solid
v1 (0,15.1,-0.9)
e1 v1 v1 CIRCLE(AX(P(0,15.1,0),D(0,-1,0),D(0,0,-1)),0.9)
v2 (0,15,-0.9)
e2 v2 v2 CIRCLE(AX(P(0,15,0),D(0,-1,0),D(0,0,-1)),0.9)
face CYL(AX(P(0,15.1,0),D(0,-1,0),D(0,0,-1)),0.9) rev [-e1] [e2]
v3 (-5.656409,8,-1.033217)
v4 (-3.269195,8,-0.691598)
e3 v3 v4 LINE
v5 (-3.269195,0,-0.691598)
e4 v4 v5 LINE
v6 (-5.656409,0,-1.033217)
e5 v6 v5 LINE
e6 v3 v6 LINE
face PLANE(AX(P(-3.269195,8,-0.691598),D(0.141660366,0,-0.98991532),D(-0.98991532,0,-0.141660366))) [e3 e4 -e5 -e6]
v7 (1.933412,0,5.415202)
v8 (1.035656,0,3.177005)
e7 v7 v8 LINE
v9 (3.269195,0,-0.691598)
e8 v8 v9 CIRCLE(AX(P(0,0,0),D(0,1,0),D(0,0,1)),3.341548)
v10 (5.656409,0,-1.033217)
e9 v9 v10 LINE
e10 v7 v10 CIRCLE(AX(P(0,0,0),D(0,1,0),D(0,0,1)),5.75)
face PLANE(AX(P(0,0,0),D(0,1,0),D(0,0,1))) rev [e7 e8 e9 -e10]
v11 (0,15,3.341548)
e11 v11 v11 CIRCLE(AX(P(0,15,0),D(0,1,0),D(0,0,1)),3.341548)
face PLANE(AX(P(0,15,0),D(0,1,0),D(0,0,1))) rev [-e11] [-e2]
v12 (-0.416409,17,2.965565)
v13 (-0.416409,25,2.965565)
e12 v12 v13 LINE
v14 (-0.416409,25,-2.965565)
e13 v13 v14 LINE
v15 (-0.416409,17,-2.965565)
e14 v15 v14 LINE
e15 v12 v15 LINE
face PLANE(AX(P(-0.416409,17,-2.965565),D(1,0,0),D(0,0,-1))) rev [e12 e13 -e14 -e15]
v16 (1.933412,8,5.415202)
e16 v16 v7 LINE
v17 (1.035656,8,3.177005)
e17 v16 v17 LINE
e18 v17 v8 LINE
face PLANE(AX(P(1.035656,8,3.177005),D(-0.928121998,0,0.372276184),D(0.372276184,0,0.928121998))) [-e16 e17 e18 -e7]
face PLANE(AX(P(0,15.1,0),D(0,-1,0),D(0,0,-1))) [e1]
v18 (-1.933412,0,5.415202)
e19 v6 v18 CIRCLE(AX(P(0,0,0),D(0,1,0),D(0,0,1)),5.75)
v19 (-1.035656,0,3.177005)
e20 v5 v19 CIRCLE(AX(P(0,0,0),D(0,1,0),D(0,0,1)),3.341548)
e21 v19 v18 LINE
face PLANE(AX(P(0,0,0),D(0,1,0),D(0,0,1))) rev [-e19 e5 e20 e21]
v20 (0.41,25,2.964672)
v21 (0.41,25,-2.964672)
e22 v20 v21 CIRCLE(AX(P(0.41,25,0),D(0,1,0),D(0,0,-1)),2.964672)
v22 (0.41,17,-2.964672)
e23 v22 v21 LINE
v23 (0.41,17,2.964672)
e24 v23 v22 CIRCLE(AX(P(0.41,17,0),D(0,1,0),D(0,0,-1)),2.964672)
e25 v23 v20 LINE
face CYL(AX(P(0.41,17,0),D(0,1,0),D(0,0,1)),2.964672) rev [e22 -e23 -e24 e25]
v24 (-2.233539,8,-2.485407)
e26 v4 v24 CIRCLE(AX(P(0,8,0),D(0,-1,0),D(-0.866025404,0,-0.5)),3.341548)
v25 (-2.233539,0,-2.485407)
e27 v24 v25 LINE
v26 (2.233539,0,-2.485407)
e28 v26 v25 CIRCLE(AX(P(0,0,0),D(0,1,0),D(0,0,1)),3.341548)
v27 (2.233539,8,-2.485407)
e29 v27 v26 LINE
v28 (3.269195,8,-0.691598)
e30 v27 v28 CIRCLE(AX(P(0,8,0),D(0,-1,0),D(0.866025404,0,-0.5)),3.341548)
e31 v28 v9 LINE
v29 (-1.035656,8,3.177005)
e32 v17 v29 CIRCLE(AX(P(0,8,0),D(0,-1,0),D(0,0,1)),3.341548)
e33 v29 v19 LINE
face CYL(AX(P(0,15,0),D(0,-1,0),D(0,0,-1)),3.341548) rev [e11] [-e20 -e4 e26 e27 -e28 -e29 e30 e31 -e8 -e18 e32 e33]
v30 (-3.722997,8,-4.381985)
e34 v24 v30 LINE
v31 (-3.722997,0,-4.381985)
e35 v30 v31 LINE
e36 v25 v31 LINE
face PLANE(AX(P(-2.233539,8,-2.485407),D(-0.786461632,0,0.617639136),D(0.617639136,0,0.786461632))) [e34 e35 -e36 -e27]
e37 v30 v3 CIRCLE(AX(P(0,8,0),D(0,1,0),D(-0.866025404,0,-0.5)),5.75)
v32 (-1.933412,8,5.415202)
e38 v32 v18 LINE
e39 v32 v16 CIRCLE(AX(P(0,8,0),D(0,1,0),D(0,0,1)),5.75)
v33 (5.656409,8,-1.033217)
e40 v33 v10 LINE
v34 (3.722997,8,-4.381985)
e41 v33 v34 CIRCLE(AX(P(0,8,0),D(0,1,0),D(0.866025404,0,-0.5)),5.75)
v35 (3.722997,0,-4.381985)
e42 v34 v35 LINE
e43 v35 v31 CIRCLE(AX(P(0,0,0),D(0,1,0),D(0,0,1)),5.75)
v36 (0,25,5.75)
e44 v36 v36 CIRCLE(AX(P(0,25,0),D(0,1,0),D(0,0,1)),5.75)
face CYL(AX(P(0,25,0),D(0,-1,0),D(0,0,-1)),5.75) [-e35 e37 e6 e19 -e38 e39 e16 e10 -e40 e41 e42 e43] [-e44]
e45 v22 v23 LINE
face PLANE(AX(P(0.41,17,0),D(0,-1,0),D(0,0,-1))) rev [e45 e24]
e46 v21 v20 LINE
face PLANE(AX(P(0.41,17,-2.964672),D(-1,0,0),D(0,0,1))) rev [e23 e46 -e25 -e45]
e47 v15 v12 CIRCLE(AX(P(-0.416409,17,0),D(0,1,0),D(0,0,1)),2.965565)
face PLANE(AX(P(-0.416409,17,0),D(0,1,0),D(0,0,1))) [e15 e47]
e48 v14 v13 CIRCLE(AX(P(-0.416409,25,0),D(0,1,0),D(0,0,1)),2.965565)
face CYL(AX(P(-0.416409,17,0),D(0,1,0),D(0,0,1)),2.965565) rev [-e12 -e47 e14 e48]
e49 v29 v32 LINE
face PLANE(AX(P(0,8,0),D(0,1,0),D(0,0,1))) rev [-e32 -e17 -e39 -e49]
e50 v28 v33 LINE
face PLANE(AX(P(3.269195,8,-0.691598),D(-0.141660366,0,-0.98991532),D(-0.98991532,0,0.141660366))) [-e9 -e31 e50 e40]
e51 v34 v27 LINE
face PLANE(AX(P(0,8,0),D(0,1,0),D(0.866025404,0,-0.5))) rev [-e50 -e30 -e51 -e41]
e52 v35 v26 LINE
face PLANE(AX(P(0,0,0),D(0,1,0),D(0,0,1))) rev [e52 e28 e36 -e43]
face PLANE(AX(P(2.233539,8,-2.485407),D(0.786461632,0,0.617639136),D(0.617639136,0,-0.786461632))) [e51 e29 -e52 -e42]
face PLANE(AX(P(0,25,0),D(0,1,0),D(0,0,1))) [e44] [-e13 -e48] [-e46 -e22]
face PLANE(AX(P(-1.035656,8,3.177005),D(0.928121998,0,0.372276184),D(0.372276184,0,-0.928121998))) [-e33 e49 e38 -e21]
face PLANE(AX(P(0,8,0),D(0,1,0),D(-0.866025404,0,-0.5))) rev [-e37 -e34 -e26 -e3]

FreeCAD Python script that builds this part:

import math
import FreeCAD as App
import Part
import Sketcher
Q = App.Units.Quantity

doc = App.newDocument("Part")
body = doc.addObject("PartDesign::Body", "Body")

# Sketch on XZ plane
sketch1 = body.newObject("Sketcher::SketchObject", "Sketch")
sketch1.AttachmentSupport = (doc.getObject("XZ_Plane"), [""])
sketch1.MapMode = "FlatFace"
sketch1.addGeometry(Part.Circle(App.Vector(0, 0, 0), App.Vector(0, 0, 1), 6), False)
sketch1.addConstraint(Sketcher.Constraint("Coincident", 0, 3, -1, 1))
sketch1.addConstraint(Sketcher.Constraint("Diameter", 0, Q("11.5 mm")))
pad1 = body.newObject("PartDesign::Pad", "Pad")
pad1.Profile = sketch1
pad1.Length = 25
pad1.Reversed = True

# Sketch on XZ plane
sketch2 = body.newObject("Sketcher::SketchObject", "Sketch001")
sketch2.AttachmentSupport = (doc.getObject("XZ_Plane"), [""])
sketch2.MapMode = "FlatFace"
sketch2.addGeometry(Part.Circle(App.Vector(0, 0, 0), App.Vector(0, 0, 1), 3.3), False)
sketch2.addConstraint(Sketcher.Constraint("Coincident", 0, 3, -1, 1))
sketch2.addConstraint(Sketcher.Constraint("Diameter", 0, Q("6.683097 mm")))
pocket1 = body.newObject("PartDesign::Pocket", "Pocket")
pocket1.Profile = sketch2
pocket1.Length = 15

# Sketch on XZ plane
sketch3 = body.newObject("Sketcher::SketchObject", "Sketch002")
sketch3.AttachmentSupport = (doc.getObject("XZ_Plane"), [""])
sketch3.MapMode = "FlatFace"
sketch3.addGeometry(Part.LineSegment(App.Vector(-1, 3.2, 0), App.Vector(-1.9, 5.4, 0)), False)
sketch3.addGeometry(Part.ArcOfCircle(Part.Circle(App.Vector(0, 0, 0), App.Vector(0, 0, 1), 5.7), math.radians(70), math.radians(110)), False)
sketch3.addGeometry(Part.LineSegment(App.Vector(1.9, 5.4, 0), App.Vector(1, 3.2, 0)), False)
sketch3.addGeometry(Part.ArcOfCircle(Part.Circle(App.Vector(0, 0, 0), App.Vector(0, 0, 1), 3.3), math.radians(72), math.radians(108)), False)
sketch3.addConstraint(Sketcher.Constraint("Coincident", 0, 2, 1, 2))
sketch3.addConstraint(Sketcher.Constraint("Coincident", 1, 1, 2, 1))
sketch3.addConstraint(Sketcher.Constraint("Coincident", 2, 2, 3, 1))
sketch3.addConstraint(Sketcher.Constraint("Coincident", 3, 2, 0, 1))
sketch3.addConstraint(Sketcher.Constraint("Coincident", 1, 3, -1, 1))
sketch3.addConstraint(Sketcher.Constraint("Coincident", 3, 3, -1, 1))
sketch3.addConstraint(Sketcher.Constraint("Horizontal", 0, 2, 1, 1))
sketch3.addConstraint(Sketcher.Constraint("Horizontal", 2, 2, 3, 2))
sketch3.addConstraint(Sketcher.Constraint("Radius", 1, Q("5.75 mm")))
sketch3.addConstraint(Sketcher.Constraint("Radius", 3, Q("3.341548 mm")))
sketch3.addConstraint(Sketcher.Constraint("DistanceX", 0, 2, 2, 2, Q("2.969068 mm")))
sketch3.addConstraint(Sketcher.Constraint("DistanceX", 3, 2, 2, 2, Q("2.071312 mm")))
pocket2 = body.newObject("PartDesign::Pocket", "Pocket001")
pocket2.Profile = sketch3
pocket2.Length = 8
doc.recompute()

polarpattern = body.newObject("PartDesign::PolarPattern", "PolarPattern")
polarpattern.Originals = [pocket2]
polarpattern.Axis = (doc.getObject("Y_Axis"), [""])
polarpattern.Angle = 360
polarpattern.Occurrences = 3
body.Tip = polarpattern

# Sketch on XZ plane
sketch4 = body.newObject("Sketcher::SketchObject", "Sketch003")
sketch4.AttachmentSupport = (doc.getObject("XZ_Plane"), [""])
sketch4.MapMode = "FlatFace"
sketch4.AttachmentOffset = App.Placement(App.Vector(0, 0, -25), App.Rotation())
sketch4.addGeometry(Part.LineSegment(App.Vector(0.4, -3, 0), App.Vector(0.4, 3, 0)), False)
sketch4.addGeometry(Part.ArcOfCircle(Part.Circle(App.Vector(0.4, 0, 0), App.Vector(0, 0, 1), 3), math.radians(-90), math.radians(90)), False)
sketch4.addGeometry(Part.LineSegment(App.Vector(-0.4, 3, 0), App.Vector(-0.4, -3, 0)), False)
sketch4.addGeometry(Part.ArcOfCircle(Part.Circle(App.Vector(-0.4, 0, 0), App.Vector(0, 0, 1), 3), math.radians(90), math.radians(270)), False)
sketch4.addConstraint(Sketcher.Constraint("Coincident", 0, 1, 1, 1))
sketch4.addConstraint(Sketcher.Constraint("Coincident", 1, 2, 0, 2))
sketch4.addConstraint(Sketcher.Constraint("Coincident", 2, 1, 3, 1))
sketch4.addConstraint(Sketcher.Constraint("Coincident", 3, 2, 2, 2))
sketch4.addConstraint(Sketcher.Constraint("Vertical", 0))
sketch4.addConstraint(Sketcher.Constraint("Vertical", 2))
sketch4.addConstraint(Sketcher.Constraint("PointOnObject", 1, 3, -1))
sketch4.addConstraint(Sketcher.Constraint("PointOnObject", 3, 3, -1))
sketch4.addConstraint(Sketcher.Constraint("Vertical", 1, 3, 0, 1))
sketch4.addConstraint(Sketcher.Constraint("Vertical", 3, 3, 2, 1))
sketch4.addConstraint(Sketcher.Constraint("DistanceX", -1, 1, 1, 3, Q("0.41 mm")))
sketch4.addConstraint(Sketcher.Constraint("Radius", 1, Q("2.964672 mm")))
sketch4.addConstraint(Sketcher.Constraint("Radius", 3, Q("2.965565 mm")))
sketch4.addConstraint(Sketcher.Constraint("DistanceX", 3, 3, -1, 1, Q("0.416409 mm")))
pocket3 = body.newObject("PartDesign::Pocket", "Pocket002")
pocket3.Profile = sketch4
pocket3.Length = 8
pocket3.Reversed = True

# Sketch on XZ plane
sketch5 = body.newObject("Sketcher::SketchObject", "Sketch004")
sketch5.AttachmentSupport = (doc.getObject("XZ_Plane"), [""])
sketch5.MapMode = "FlatFace"
sketch5.AttachmentOffset = App.Placement(App.Vector(0, 0, -15), App.Rotation())
sketch5.addGeometry(Part.Circle(App.Vector(0, 0, 0), App.Vector(0, 0, 1), 0.9), False)
sketch5.addConstraint(Sketcher.Constraint("Coincident", 0, 3, -1, 1))
sketch5.addConstraint(Sketcher.Constraint("Diameter", 0, Q("1.8 mm")))
pocket4 = body.newObject("PartDesign::Pocket", "Pocket003")
pocket4.Profile = sketch5
pocket4.Length = 0.1

doc.recompute()
